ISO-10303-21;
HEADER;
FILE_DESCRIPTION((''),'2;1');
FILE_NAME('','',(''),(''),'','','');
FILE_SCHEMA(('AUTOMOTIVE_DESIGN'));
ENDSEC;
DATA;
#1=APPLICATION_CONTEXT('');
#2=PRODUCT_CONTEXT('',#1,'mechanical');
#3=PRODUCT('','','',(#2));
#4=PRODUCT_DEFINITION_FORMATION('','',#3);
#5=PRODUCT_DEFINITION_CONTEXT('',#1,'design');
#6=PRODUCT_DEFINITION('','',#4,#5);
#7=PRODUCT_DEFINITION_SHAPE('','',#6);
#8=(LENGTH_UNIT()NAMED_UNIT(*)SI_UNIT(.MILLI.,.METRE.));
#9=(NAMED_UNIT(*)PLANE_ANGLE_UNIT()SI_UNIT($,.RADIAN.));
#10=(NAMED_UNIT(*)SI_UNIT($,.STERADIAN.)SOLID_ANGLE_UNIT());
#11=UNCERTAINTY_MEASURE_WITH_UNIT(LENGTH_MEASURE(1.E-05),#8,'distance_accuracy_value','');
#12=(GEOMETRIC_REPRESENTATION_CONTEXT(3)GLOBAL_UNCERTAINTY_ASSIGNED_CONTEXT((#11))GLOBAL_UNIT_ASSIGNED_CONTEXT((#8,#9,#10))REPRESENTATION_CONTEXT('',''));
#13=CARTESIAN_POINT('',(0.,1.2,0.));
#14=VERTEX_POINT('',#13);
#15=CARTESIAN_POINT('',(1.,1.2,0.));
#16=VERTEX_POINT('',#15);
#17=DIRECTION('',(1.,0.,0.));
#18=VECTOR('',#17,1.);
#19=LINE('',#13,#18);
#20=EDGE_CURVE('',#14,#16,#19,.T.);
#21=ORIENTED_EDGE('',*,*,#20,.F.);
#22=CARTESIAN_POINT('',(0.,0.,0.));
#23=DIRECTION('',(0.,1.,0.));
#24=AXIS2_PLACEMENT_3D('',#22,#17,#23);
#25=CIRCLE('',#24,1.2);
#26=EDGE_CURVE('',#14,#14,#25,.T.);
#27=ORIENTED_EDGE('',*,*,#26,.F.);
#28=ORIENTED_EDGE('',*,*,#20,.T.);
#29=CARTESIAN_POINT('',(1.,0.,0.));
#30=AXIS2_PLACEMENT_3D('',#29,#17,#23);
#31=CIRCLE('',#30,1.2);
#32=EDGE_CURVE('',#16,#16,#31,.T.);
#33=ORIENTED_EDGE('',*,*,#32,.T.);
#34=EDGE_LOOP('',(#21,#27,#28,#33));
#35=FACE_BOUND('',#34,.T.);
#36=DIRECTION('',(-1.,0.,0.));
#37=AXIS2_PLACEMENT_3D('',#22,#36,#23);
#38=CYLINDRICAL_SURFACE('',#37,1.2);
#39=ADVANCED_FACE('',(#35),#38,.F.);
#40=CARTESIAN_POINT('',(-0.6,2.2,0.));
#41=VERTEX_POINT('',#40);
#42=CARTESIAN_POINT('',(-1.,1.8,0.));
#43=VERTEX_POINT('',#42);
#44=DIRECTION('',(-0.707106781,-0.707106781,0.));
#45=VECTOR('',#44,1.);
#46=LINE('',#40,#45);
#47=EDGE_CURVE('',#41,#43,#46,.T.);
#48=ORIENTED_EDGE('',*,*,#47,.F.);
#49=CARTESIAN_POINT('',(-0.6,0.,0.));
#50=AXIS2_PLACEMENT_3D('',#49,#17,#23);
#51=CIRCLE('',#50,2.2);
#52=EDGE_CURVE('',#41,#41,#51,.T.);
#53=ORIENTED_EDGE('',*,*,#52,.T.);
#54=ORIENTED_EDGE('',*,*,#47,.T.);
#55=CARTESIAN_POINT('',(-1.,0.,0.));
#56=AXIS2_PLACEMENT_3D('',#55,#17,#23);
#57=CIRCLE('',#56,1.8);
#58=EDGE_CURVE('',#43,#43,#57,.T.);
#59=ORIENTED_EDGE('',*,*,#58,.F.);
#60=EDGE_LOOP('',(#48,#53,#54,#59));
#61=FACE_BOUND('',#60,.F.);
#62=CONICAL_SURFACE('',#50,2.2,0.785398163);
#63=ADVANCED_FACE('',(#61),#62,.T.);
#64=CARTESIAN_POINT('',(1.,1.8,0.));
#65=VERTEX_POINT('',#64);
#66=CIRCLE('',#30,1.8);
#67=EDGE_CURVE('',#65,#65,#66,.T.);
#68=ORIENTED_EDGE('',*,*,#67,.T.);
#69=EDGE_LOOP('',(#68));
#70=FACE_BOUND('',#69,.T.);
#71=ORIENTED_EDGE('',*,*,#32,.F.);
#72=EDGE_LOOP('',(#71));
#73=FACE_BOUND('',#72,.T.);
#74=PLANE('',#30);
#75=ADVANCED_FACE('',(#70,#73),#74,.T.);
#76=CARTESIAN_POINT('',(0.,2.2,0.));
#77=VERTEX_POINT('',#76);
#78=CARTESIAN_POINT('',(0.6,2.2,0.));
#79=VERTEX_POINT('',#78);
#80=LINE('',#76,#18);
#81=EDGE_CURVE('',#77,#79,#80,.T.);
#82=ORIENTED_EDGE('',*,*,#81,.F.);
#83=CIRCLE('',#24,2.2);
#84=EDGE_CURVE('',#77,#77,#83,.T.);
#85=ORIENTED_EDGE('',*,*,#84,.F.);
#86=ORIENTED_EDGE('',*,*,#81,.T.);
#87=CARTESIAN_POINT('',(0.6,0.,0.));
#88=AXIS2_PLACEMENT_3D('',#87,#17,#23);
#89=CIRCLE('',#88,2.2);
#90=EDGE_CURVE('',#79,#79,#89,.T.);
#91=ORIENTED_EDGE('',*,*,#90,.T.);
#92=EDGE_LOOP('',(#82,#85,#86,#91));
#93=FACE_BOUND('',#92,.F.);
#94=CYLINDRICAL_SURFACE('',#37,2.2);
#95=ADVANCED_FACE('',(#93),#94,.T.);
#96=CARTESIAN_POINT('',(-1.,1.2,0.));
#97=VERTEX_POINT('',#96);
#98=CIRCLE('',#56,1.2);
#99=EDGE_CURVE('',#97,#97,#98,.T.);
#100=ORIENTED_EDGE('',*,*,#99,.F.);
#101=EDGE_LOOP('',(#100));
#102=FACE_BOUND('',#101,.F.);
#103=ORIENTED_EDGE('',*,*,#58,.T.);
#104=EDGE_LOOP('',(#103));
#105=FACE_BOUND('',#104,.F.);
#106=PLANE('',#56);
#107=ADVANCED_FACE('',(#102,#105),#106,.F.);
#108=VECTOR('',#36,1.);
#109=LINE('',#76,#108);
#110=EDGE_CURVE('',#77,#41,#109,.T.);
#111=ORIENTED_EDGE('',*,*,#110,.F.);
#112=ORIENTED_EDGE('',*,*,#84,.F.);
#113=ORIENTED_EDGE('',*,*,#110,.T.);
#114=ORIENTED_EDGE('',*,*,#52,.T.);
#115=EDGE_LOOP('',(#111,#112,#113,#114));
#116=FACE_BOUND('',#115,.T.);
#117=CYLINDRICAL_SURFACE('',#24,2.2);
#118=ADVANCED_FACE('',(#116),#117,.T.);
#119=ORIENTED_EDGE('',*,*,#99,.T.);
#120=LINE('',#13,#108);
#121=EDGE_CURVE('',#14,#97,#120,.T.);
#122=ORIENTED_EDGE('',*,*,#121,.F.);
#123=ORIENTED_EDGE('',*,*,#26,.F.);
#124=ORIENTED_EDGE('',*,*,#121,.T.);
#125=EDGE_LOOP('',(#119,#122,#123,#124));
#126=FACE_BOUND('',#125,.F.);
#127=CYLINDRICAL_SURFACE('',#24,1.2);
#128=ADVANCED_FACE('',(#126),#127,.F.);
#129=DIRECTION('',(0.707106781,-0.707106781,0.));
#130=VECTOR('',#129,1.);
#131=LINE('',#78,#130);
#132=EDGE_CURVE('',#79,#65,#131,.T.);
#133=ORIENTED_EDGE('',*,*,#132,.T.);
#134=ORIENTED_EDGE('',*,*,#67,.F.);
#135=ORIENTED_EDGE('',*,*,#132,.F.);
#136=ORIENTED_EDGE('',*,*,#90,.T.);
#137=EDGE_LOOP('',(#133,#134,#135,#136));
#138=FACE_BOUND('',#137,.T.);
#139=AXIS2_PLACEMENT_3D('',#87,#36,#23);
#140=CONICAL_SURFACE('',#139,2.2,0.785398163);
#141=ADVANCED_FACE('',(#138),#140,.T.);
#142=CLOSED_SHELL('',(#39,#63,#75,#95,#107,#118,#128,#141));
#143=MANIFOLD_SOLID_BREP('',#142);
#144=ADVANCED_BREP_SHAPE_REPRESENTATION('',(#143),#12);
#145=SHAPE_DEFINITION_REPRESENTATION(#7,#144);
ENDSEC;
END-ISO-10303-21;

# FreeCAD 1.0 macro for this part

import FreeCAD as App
import Part
import Sketcher

V = App.Vector


def edges_at(feature, points):
    """Names of the edges that pass closest to the given points."""
    edges = feature.Shape.Edges
    near = lambda p: min(range(len(edges)), key=lambda i: edges[i].distToShape(Part.Vertex(*p))[0])
    return sorted({f"Edge{near(p) + 1}" for p in points})

doc = App.newDocument("Part")
body = doc.addObject("PartDesign::Body", "Body")

sketch1 = body.newObject("Sketcher::SketchObject", "Sketch")
sketch1.AttachmentSupport = (doc.getObject("YZ_Plane"), [""])
sketch1.MapMode = "FlatFace"
sketch1.addGeometry([
    Part.Circle(V(0, 0, 0), V(0, 0, 1), 2.2),
    Part.Circle(V(0, 0, 0), V(0, 0, 1), 1.2),
], False)
sketch1.addConstraint([
    Sketcher.Constraint("Coincident", 0, 3, -1, 1),
    Sketcher.Constraint("Coincident", 1, 3, -1, 1),
    Sketcher.Constraint("Diameter", 1, 2.4),
    Sketcher.Constraint("Diameter", 0, 4.4),
])
pad1 = body.newObject("PartDesign::Pad", "Pad")
pad1.Profile = sketch1
pad1.Length = 2
pad1.Midplane = True
doc.recompute()

chamfer = body.newObject("PartDesign::Chamfer", "Chamfer")
chamfer.Base = (pad1, edges_at(pad1, [(1, -2.2, 0), (-1, -2.2, 0)]))
chamfer.Size = 0.4

doc.recompute()
